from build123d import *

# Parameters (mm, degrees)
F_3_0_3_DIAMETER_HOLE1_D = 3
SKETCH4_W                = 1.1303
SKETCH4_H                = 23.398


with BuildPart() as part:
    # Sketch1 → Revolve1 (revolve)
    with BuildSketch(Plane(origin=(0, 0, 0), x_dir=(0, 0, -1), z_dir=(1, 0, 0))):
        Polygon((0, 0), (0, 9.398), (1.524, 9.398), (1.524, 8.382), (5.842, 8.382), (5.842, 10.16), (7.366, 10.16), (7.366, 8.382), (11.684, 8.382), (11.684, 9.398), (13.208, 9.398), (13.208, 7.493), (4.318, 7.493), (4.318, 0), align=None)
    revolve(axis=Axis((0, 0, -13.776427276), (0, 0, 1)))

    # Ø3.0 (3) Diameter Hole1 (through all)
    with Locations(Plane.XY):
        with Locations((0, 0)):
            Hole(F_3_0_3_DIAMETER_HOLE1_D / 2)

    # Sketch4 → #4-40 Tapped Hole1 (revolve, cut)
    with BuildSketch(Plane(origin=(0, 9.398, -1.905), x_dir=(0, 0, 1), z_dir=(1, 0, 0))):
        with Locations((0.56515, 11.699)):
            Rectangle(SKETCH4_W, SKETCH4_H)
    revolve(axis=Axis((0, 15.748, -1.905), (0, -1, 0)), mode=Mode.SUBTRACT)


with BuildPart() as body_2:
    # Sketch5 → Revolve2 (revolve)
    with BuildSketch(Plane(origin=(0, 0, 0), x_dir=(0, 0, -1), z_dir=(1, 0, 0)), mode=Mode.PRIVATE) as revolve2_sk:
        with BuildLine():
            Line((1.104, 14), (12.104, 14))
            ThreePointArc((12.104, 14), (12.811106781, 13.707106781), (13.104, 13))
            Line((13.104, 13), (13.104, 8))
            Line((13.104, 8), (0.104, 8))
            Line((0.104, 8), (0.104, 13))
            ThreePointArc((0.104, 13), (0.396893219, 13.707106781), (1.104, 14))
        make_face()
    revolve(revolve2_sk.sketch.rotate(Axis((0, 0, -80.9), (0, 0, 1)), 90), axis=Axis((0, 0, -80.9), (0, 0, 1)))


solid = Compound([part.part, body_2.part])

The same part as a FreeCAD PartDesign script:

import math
import FreeCAD as App
import Part
import Sketcher
Q = App.Units.Quantity

doc = App.newDocument("Part")
body = doc.addObject("PartDesign::Body", "Body")

# Sketch on YZ plane
sketch1 = body.newObject("Sketcher::SketchObject", "Sketch")
sketch1.AttachmentSupport = (doc.getObject("YZ_Plane"), [""])
sketch1.MapMode = "FlatFace"
sketch1.addGeometry(Part.LineSegment(App.Vector(9.398, 0, 0), App.Vector(0, 0, 0)), False)
sketch1.addGeometry(Part.LineSegment(App.Vector(0, 0, 0), App.Vector(0, -4.318, 0)), False)
sketch1.addGeometry(Part.LineSegment(App.Vector(0, -4.318, 0), App.Vector(7.493, -4.318, 0)), False)
sketch1.addGeometry(Part.LineSegment(App.Vector(7.493, -4.318, 0), App.Vector(7.493, -13.208, 0)), False)
sketch1.addGeometry(Part.LineSegment(App.Vector(7.493, -13.208, 0), App.Vector(9.398, -13.208, 0)), False)
sketch1.addGeometry(Part.LineSegment(App.Vector(9.398, -13.208, 0), App.Vector(9.398, -11.684, 0)), False)
sketch1.addGeometry(Part.LineSegment(App.Vector(9.398, -11.684, 0), App.Vector(8.382, -11.684, 0)), False)
sketch1.addGeometry(Part.LineSegment(App.Vector(8.382, -11.684, 0), App.Vector(8.382, -7.366, 0)), False)
sketch1.addGeometry(Part.LineSegment(App.Vector(8.382, -7.366, 0), App.Vector(10.16, -7.366, 0)), False)
sketch1.addGeometry(Part.LineSegment(App.Vector(10.16, -7.366, 0), App.Vector(10.16, -5.842, 0)), False)
sketch1.addGeometry(Part.LineSegment(App.Vector(10.16, -5.842, 0), App.Vector(8.382, -5.842, 0)), False)
sketch1.addGeometry(Part.LineSegment(App.Vector(8.382, -5.842, 0), App.Vector(8.382, -1.524, 0)), False)
sketch1.addGeometry(Part.LineSegment(App.Vector(8.382, -1.524, 0), App.Vector(9.398, -1.524, 0)), False)
sketch1.addGeometry(Part.LineSegment(App.Vector(9.398, -1.524, 0), App.Vector(9.398, 0, 0)), False)
sketch1.addConstraint(Sketcher.Constraint("Coincident", 0, 2, 1, 1))
sketch1.addConstraint(Sketcher.Constraint("Coincident", 1, 2, 2, 1))
sketch1.addConstraint(Sketcher.Constraint("Coincident", 2, 2, 3, 1))
sketch1.addConstraint(Sketcher.Constraint("Coincident", 3, 2, 4, 1))
sketch1.addConstraint(Sketcher.Constraint("Coincident", 4, 2, 5, 1))
sketch1.addConstraint(Sketcher.Constraint("Coincident", 5, 2, 6, 1))
sketch1.addConstraint(Sketcher.Constraint("Coincident", 6, 2, 7, 1))
sketch1.addConstraint(Sketcher.Constraint("Coincident", 7, 2, 8, 1))
sketch1.addConstraint(Sketcher.Constraint("Coincident", 8, 2, 9, 1))
sketch1.addConstraint(Sketcher.Constraint("Coincident", 9, 2, 10, 1))
sketch1.addConstraint(Sketcher.Constraint("Coincident", 10, 2, 11, 1))
sketch1.addConstraint(Sketcher.Constraint("Coincident", 11, 2, 12, 1))
sketch1.addConstraint(Sketcher.Constraint("Coincident", 12, 2, 13, 1))
sketch1.addConstraint(Sketcher.Constraint("Coincident", 13, 2, 0, 1))
sketch1.addConstraint(Sketcher.Constraint("Horizontal", 0))
sketch1.addConstraint(Sketcher.Constraint("Vertical", 1))
sketch1.addConstraint(Sketcher.Constraint("Horizontal", 2))
sketch1.addConstraint(Sketcher.Constraint("Vertical", 3))
sketch1.addConstraint(Sketcher.Constraint("Horizontal", 4))
sketch1.addConstraint(Sketcher.Constraint("Vertical", 5))
sketch1.addConstraint(Sketcher.Constraint("Horizontal", 6))
sketch1.addConstraint(Sketcher.Constraint("Vertical", 7))
sketch1.addConstraint(Sketcher.Constraint("Horizontal", 8))
sketch1.addConstraint(Sketcher.Constraint("Vertical", 9))
sketch1.addConstraint(Sketcher.Constraint("Horizontal", 10))
sketch1.addConstraint(Sketcher.Constraint("Vertical", 11))
sketch1.addConstraint(Sketcher.Constraint("Horizontal", 12))
sketch1.addConstraint(Sketcher.Constraint("Vertical", 13))
sketch1.addConstraint(Sketcher.Constraint("Coincident", 0, 2, -1, 1))
sketch1.addConstraint(Sketcher.Constraint("Vertical", 7, 2, 10, 2))
sketch1.addConstraint(Sketcher.Constraint("Vertical", 5, 2, 12, 2))
sketch1.addConstraint(Sketcher.Constraint("Equal", 1, 7))
sketch1.addConstraint(Sketcher.Constraint("Equal", 5, 9))
sketch1.addConstraint(Sketcher.Constraint("Equal", 7, 11))
sketch1.addConstraint(Sketcher.Constraint("Equal", 9, 13))
sketch1.addConstraint(Sketcher.Constraint("DistanceX", 0, 2, 0, 1, Q("0.37 in")))
sketch1.addConstraint(Sketcher.Constraint("DistanceX", 6, 2, 6, 1, Q("0.04 in")))
sketch1.addConstraint(Sketcher.Constraint("DistanceX", 8, 1, 8, 2, Q("0.07 in")))
sketch1.addConstraint(Sketcher.Constraint("DistanceY", 1, 2, 1, 1, Q("0.17 in")))
sketch1.addConstraint(Sketcher.Constraint("DistanceY", 3, 2, 3, 1, Q("0.35 in")))
sketch1.addConstraint(Sketcher.Constraint("DistanceX", 2, 1, 2, 2, Q("0.295 in")))
revolution = body.newObject("PartDesign::Revolution", "Revolution")
revolution.Profile = sketch1
revolution.ReferenceAxis = (sketch1, ["V_Axis"])
revolution.Angle = 360

# Sketch on XY plane
sketch2 = body.newObject("Sketcher::SketchObject", "Sketch001")
sketch2.AttachmentSupport = (doc.getObject("XY_Plane"), [""])
sketch2.MapMode = "FlatFace"
sketch2.addGeometry(Part.Circle(App.Vector(0, 0, 0), App.Vector(0, 0, 1), 1.5), False)
sketch2.addConstraint(Sketcher.Constraint("Coincident", 0, 3, -1, 1))
sketch2.addConstraint(Sketcher.Constraint("Diameter", 0, 3.0))
doc.recompute()
hole = body.newObject("PartDesign::Hole", "Hole")
hole.Profile = sketch2
hole.ThreadType = "None"
hole.Diameter = 3
hole.DepthType = "ThroughAll"

# Sketch on YZ plane
sketch3 = body.newObject("Sketcher::SketchObject", "Sketch002")
sketch3.AttachmentSupport = (doc.getObject("YZ_Plane"), [""])
sketch3.MapMode = "FlatFace"
sketch3.addGeometry(Part.LineSegment(App.Vector(-14, -1.905, 0), App.Vector(9.398, -1.905, 0)), False)
sketch3.addGeometry(Part.LineSegment(App.Vector(9.398, -1.905, 0), App.Vector(9.398, -0.7747, 0)), False)
sketch3.addGeometry(Part.LineSegment(App.Vector(9.398, -0.7747, 0), App.Vector(-14, -0.7747, 0)), False)
sketch3.addGeometry(Part.LineSegment(App.Vector(-14, -0.7747, 0), App.Vector(-14, -1.905, 0)), False)
sketch3.addGeometry(Part.LineSegment(App.Vector(9.398, -1.905, 0), App.Vector(-14, -1.905, 0)), True)  # axis
sketch3.addConstraint(Sketcher.Constraint("Coincident", 0, 2, 1, 1))
sketch3.addConstraint(Sketcher.Constraint("Coincident", 1, 2, 2, 1))
sketch3.addConstraint(Sketcher.Constraint("Coincident", 2, 2, 3, 1))
sketch3.addConstraint(Sketcher.Constraint("Coincident", 3, 2, 0, 1))
sketch3.addConstraint(Sketcher.Constraint("Horizontal", 0))
sketch3.addConstraint(Sketcher.Constraint("Vertical", 1))
sketch3.addConstraint(Sketcher.Constraint("Horizontal", 2))
sketch3.addConstraint(Sketcher.Constraint("Vertical", 3))
sketch3.addConstraint(Sketcher.Constraint("Horizontal", 4))
sketch3.addConstraint(Sketcher.Constraint("Coincident", 4, 1, 0, 2))
sketch3.addConstraint(Sketcher.Constraint("Vertical", 2, 2, 4, 2))
sketch3.addConstraint(Sketcher.Constraint("DistanceX", -1, 1, 0, 2, Q("0.37 in")))
sketch3.addConstraint(Sketcher.Constraint("DistanceY", 1, 1, 1, 2, Q("0.0445 in")))
sketch3.addConstraint(Sketcher.Constraint("DistanceY", 0, 2, -1, 1, Q("0.075 in")))
sketch3.addConstraint(Sketcher.Constraint("DistanceX", 0, 1, 0, 2, 23.398))
groove = body.newObject("PartDesign::Groove", "Groove")
groove.Profile = sketch3
groove.ReferenceAxis = (sketch3, ["Axis0"])
groove.Angle = 360
body2 = doc.addObject("PartDesign::Body", "Body001")

# Sketch on YZ plane
sketch4 = body2.newObject("Sketcher::SketchObject", "Sketch003")
sketch4.AttachmentSupport = (doc.getObject("YZ_Plane001"), [""])
sketch4.MapMode = "FlatFace"
sketch4.addGeometry(Part.LineSegment(App.Vector(14, -12.104, 0), App.Vector(14, -1.104, 0)), False)
sketch4.addGeometry(Part.ArcOfCircle(Part.Circle(App.Vector(13, -1.104, 0), App.Vector(0, 0, 1), 1), math.radians(0), math.radians(90)), False)
sketch4.addGeometry(Part.LineSegment(App.Vector(13, -0.104, 0), App.Vector(8, -0.104, 0)), False)
sketch4.addGeometry(Part.LineSegment(App.Vector(8, -0.104, 0), App.Vector(8, -13.104, 0)), False)
sketch4.addGeometry(Part.LineSegment(App.Vector(8, -13.104, 0), App.Vector(13, -13.104, 0)), False)
sketch4.addGeometry(Part.ArcOfCircle(Part.Circle(App.Vector(13, -12.104, 0), App.Vector(0, 0, 1), 1), math.radians(-90), math.radians(0)), False)
sketch4.addConstraint(Sketcher.Constraint("Tangent", 0, 2, 1, 1))
sketch4.addConstraint(Sketcher.Constraint("Tangent", 1, 2, 2, 1))
sketch4.addConstraint(Sketcher.Constraint("Coincident", 2, 2, 3, 1))
sketch4.addConstraint(Sketcher.Constraint("Coincident", 3, 2, 4, 1))
sketch4.addConstraint(Sketcher.Constraint("Tangent", 4, 2, 5, 1))
sketch4.addConstraint(Sketcher.Constraint("Tangent", 5, 2, 0, 1))
sketch4.addConstraint(Sketcher.Constraint("Vertical", 0))
sketch4.addConstraint(Sketcher.Constraint("Horizontal", 2))
sketch4.addConstraint(Sketcher.Constraint("Vertical", 3))
sketch4.addConstraint(Sketcher.Constraint("Horizontal", 4))
sketch4.addConstraint(Sketcher.Constraint("Equal", 1, 5))
sketch4.addConstraint(Sketcher.Constraint("Radius", 1, 1.0))
sketch4.addConstraint(Sketcher.Constraint("DistanceX", 2, 2, 2, 1, 5.0))
sketch4.addConstraint(Sketcher.Constraint("DistanceY", 0, 1, 0, 2, 11.0))
sketch4.addConstraint(Sketcher.Constraint("DistanceX", -1, 1, 1, 3, 13.0))
sketch4.addConstraint(Sketcher.Constraint("DistanceY", 1, 3, -1, 1, 1.104))
revolution2 = body2.newObject("PartDesign::Revolution", "Revolution001")
revolution2.Profile = sketch4
revolution2.ReferenceAxis = (sketch4, ["V_Axis"])
revolution2.Angle = 360

doc.recompute()
